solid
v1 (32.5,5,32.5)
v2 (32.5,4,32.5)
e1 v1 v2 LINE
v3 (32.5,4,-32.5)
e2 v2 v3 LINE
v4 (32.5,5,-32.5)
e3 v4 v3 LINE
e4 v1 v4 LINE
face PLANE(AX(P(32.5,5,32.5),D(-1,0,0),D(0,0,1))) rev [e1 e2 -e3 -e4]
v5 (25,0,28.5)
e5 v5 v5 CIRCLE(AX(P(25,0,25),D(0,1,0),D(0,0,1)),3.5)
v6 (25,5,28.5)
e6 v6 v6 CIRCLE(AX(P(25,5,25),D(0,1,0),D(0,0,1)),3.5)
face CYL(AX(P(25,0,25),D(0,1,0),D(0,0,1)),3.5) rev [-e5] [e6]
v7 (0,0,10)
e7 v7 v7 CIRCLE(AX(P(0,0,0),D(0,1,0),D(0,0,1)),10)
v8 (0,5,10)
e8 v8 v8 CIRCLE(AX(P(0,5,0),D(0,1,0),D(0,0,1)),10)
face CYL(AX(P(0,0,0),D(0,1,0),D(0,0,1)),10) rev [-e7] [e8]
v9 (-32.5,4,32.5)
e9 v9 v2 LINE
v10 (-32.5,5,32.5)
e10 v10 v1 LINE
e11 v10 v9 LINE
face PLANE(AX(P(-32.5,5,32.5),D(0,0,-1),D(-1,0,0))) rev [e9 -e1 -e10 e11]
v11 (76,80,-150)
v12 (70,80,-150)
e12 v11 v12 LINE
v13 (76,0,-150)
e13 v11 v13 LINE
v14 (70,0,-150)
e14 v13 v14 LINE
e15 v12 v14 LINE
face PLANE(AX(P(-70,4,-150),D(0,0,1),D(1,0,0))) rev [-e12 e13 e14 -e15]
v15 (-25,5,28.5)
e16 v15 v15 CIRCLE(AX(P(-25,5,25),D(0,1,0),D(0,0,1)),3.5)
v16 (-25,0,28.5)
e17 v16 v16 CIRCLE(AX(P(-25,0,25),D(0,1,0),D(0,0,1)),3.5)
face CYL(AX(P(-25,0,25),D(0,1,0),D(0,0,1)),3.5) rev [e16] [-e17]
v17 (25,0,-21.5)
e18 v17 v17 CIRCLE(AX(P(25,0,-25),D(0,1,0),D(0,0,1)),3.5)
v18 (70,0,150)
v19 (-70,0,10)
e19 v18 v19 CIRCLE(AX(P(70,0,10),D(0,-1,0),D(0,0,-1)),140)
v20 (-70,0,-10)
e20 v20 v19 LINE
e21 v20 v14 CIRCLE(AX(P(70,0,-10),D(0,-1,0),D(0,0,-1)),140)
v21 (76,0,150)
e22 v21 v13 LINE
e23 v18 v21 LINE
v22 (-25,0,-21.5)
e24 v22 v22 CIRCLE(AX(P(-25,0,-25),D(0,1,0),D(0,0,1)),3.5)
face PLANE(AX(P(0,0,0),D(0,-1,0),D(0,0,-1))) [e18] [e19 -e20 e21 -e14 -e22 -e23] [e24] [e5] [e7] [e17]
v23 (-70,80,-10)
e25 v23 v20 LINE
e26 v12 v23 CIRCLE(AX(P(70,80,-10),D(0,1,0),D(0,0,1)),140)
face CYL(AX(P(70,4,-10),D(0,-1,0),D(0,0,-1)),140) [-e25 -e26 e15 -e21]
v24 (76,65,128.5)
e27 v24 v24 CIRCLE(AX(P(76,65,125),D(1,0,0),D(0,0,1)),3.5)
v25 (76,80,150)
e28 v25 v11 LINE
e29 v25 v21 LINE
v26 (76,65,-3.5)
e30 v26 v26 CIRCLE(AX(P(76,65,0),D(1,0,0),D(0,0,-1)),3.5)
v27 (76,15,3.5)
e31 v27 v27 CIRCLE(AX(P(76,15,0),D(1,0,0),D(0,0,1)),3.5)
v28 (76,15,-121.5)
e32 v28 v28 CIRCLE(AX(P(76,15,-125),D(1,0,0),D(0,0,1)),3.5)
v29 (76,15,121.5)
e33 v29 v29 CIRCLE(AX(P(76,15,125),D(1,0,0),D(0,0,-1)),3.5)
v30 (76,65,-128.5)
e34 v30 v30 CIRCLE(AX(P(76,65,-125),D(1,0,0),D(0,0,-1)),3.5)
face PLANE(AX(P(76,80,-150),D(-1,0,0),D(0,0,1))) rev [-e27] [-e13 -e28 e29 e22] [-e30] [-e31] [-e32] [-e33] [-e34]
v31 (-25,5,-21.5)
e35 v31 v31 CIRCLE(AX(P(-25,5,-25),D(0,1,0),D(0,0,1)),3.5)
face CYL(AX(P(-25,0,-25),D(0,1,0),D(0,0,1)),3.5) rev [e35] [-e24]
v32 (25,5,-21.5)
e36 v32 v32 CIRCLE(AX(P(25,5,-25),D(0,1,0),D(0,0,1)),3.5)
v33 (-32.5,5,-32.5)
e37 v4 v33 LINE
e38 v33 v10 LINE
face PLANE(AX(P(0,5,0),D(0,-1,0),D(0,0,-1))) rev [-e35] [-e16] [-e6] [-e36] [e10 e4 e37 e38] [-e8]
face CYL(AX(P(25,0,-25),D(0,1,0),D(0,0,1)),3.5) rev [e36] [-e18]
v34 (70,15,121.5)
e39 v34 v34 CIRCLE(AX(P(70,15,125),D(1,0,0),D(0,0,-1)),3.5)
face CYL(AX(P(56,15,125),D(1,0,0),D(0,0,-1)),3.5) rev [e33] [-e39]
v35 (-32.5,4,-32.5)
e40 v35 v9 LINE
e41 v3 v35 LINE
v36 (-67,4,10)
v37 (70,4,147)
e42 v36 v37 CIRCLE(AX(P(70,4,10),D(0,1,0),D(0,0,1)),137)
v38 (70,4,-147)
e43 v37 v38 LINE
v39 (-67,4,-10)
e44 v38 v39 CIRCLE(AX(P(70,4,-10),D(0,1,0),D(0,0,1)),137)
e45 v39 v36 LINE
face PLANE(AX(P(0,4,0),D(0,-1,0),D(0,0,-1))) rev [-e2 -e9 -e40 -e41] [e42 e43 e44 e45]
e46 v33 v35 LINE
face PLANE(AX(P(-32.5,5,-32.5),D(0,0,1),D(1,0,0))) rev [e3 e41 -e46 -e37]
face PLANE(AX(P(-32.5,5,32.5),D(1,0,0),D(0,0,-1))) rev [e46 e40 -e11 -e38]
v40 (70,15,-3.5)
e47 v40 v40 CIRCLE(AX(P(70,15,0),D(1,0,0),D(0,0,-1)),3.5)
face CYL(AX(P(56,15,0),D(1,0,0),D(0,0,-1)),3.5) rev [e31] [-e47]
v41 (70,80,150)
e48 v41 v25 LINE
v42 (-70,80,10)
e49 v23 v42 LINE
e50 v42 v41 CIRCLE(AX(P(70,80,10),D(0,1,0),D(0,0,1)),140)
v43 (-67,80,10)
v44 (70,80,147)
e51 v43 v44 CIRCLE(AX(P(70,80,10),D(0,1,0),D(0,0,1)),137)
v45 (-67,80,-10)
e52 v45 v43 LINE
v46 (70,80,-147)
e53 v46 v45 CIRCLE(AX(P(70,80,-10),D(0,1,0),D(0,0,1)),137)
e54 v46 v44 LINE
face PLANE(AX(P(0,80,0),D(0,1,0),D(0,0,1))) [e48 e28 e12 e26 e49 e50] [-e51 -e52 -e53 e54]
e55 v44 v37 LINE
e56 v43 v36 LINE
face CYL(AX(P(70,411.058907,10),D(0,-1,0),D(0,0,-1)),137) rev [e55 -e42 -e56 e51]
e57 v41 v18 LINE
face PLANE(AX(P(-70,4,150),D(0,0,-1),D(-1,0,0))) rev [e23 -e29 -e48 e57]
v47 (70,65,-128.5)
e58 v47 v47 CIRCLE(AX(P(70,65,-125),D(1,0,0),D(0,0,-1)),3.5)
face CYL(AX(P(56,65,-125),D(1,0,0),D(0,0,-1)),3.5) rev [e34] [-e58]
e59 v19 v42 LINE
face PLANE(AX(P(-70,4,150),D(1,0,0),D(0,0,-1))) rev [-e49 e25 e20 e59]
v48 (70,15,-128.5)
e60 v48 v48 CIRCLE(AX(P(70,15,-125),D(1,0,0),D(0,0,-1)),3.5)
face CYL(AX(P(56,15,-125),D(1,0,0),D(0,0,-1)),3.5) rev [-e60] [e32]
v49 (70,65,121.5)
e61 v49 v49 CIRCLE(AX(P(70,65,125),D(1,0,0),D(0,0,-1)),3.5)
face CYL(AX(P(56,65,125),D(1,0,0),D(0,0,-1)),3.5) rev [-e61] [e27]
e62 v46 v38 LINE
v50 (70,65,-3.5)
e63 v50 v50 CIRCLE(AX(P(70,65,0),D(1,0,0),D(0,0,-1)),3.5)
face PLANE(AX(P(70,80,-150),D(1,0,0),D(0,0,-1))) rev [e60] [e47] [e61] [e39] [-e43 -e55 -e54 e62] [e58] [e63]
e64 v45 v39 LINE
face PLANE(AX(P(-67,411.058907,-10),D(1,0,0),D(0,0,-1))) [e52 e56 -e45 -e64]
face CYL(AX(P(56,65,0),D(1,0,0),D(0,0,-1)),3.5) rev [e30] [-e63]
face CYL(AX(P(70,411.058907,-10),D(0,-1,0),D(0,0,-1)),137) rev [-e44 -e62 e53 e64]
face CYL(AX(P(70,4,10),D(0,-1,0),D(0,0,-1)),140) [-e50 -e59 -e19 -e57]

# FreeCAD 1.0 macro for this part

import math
import FreeCAD as App
import Part
import Sketcher


def edges_at(feature, points):
    """Names of the edges that pass closest to the given points."""
    edges = feature.Shape.Edges
    near = lambda p: min(range(len(edges)), key=lambda i: edges[i].distToShape(Part.Vertex(*p))[0])
    return sorted({f"Edge{near(p) + 1}" for p in points})


def add_polygon(sketch, points):
    """Adds a closed chain of lines whose ends are joined by coincident constraints."""
    first, n = sketch.GeometryCount, len(points)
    for a, b in zip(points, points[1:] + points[:1]):
        sketch.addGeometry(Part.LineSegment(App.Vector(*a, 0), App.Vector(*b, 0)), False)
    for i in range(n):
        sketch.addConstraint(Sketcher.Constraint("Coincident", first + i, 2, first + (i + 1) % n, 1))

doc = App.newDocument("Part")
body = doc.addObject("PartDesign::Body", "Body")

# Sketch on XZ plane
sketch1 = doc.addObject("Sketcher::SketchObject", "Sketch")
body.addObject(sketch1)
sketch1.AttachmentSupport = (doc.XZ_Plane, [""])
sketch1.MapMode = "FlatFace"
add_polygon(sketch1, [(-70, -150), (-70, 150), (70, 150), (70, -150)])  # lines 0-3
sketch1.addConstraint(Sketcher.Constraint("Vertical", 0))
sketch1.addConstraint(Sketcher.Constraint("Horizontal", 1))
sketch1.addConstraint(Sketcher.Constraint("Vertical", 2))
sketch1.addConstraint(Sketcher.Constraint("Horizontal", 3))
sketch1.addConstraint(Sketcher.Constraint("Symmetric", 0, 2, 2, 2, -1, 1))
sketch1.addConstraint(Sketcher.Constraint("DistanceX", 1, 1, 1, 2, 140.0))
sketch1.addConstraint(Sketcher.Constraint("DistanceY", 0, 1, 0, 2, 300.0))
pad1 = doc.addObject("PartDesign::Pad", "Pad")
body.addObject(pad1)
pad1.Profile = sketch1
pad1.Length = 4
pad1.Reversed = True

# Sketch on XZ plane
sketch2 = doc.addObject("Sketcher::SketchObject", "Sketch001")
body.addObject(sketch2)
sketch2.AttachmentSupport = (doc.XZ_Plane, [""])
sketch2.MapMode = "FlatFace"
add_polygon(sketch2, [(70, -150), (70, 150), (76, 150), (76, -150)])  # lines 0-3
sketch2.addConstraint(Sketcher.Constraint("Vertical", 0))
sketch2.addConstraint(Sketcher.Constraint("Horizontal", 1))
sketch2.addConstraint(Sketcher.Constraint("Vertical", 2))
sketch2.addConstraint(Sketcher.Constraint("Horizontal", 3))
sketch2.addConstraint(Sketcher.Constraint("DistanceX", 1, 1, 1, 2, 6.0))
sketch2.addConstraint(Sketcher.Constraint("DistanceY", 0, 1, 0, 2, 300.0))
sketch2.addConstraint(Sketcher.Constraint("DistanceX", -1, 1, 0, 2, 70.0))
sketch2.addConstraint(Sketcher.Constraint("DistanceY", -1, 1, 0, 2, 150.0))
pad2 = doc.addObject("PartDesign::Pad", "Pad001")
body.addObject(pad2)
pad2.Profile = sketch2
pad2.Length = 80
pad2.Reversed = True
doc.recompute()

fillet = doc.addObject("PartDesign::Fillet", "Fillet")
body.addObject(fillet)
fillet.Base = (pad2, edges_at(pad2, [(-70, 2, -150), (-70, 2, 150)]))
fillet.Radius = 140

# Sketch on XZ plane
sketch3 = doc.addObject("Sketcher::SketchObject", "Sketch002")
body.addObject(sketch3)
sketch3.AttachmentSupport = (doc.XZ_Plane, [""])
sketch3.MapMode = "FlatFace"
sketch3.AttachmentOffset = App.Placement(App.Vector(0, 0, -4), App.Rotation())
add_polygon(sketch3, [(-32.5, -32.5), (-32.5, 32.5), (32.5, 32.5), (32.5, -32.5)])  # lines 0-3
sketch3.addConstraint(Sketcher.Constraint("Vertical", 0))
sketch3.addConstraint(Sketcher.Constraint("Horizontal", 1))
sketch3.addConstraint(Sketcher.Constraint("Vertical", 2))
sketch3.addConstraint(Sketcher.Constraint("Horizontal", 3))
sketch3.addConstraint(Sketcher.Constraint("Symmetric", 0, 2, 2, 2, -1, 1))
sketch3.addConstraint(Sketcher.Constraint("Equal", 3, 0))
sketch3.addConstraint(Sketcher.Constraint("DistanceX", 1, 1, 1, 2, 65.0))
pad3 = doc.addObject("PartDesign::Pad", "Pad002")
body.addObject(pad3)
pad3.Profile = sketch3
pad3.Length = 1
pad3.Reversed = True

# Sketch on XZ plane
sketch4 = doc.addObject("Sketcher::SketchObject", "Sketch003")
body.addObject(sketch4)
sketch4.AttachmentSupport = (doc.XZ_Plane, [""])
sketch4.MapMode = "FlatFace"
sketch4.AttachmentOffset = App.Placement(App.Vector(0, 0, -5), App.Rotation())
sketch4.addGeometry(Part.Circle(App.Vector(-25, -25, 0), App.Vector(0, 0, 1), 3.5), False)
sketch4.addGeometry(Part.Circle(App.Vector(25, -25, 0), App.Vector(0, 0, 1), 3.5), False)
sketch4.addGeometry(Part.Circle(App.Vector(-25, 25, 0), App.Vector(0, 0, 1), 3.5), False)
sketch4.addGeometry(Part.Circle(App.Vector(25, 25, 0), App.Vector(0, 0, 1), 3.5), False)
sketch4.addGeometry(Part.Circle(App.Vector(0, 0, 0), App.Vector(0, 0, 1), 10), False)
sketch4.addConstraint(Sketcher.Constraint("Coincident", 4, 3, -1, 1))
sketch4.addConstraint(Sketcher.Constraint("Equal", 0, 1))
sketch4.addConstraint(Sketcher.Constraint("Equal", 1, 2))
sketch4.addConstraint(Sketcher.Constraint("Equal", 2, 3))
sketch4.addConstraint(Sketcher.Constraint("Symmetric", 1, 3, 2, 3, -1, 1))
sketch4.addConstraint(Sketcher.Constraint("Symmetric", 0, 3, 3, 3, -1, 1))
sketch4.addConstraint(Sketcher.Constraint("Symmetric", 0, 3, 1, 3, -2))
sketch4.addConstraint(Sketcher.Constraint("Diameter", 0, 7.0))
sketch4.addConstraint(Sketcher.Constraint("Diameter", 4, 20.0))
sketch4.addConstraint(Sketcher.Constraint("DistanceX", 0, 3, -1, 1, 25.0))
sketch4.addConstraint(Sketcher.Constraint("DistanceY", 0, 3, -1, 1, 25.0))
pocket1 = doc.addObject("PartDesign::Pocket", "Pocket")
body.addObject(pocket1)
pocket1.Profile = sketch4
pocket1.Type = "ThroughAll"
pocket1.Reversed = True

# Sketch on XZ plane
sketch5 = doc.addObject("Sketcher::SketchObject", "Sketch004")
body.addObject(sketch5)
sketch5.AttachmentSupport = (doc.XZ_Plane, [""])
sketch5.MapMode = "FlatFace"
sketch5.AttachmentOffset = App.Placement(App.Vector(0, 0, -80), App.Rotation())
sketch5.addGeometry(Part.ArcOfCircle(Part.Circle(App.Vector(70, -10, 0), App.Vector(0, 0, 1), 137), math.radians(180), math.radians(270)), False)
sketch5.addGeometry(Part.LineSegment(App.Vector(70, -147, 0), App.Vector(70, -150, 0)), False)
sketch5.addGeometry(Part.ArcOfCircle(Part.Circle(App.Vector(70, -10, 0), App.Vector(0, 0, 1), 140), math.radians(180), math.radians(270)), False)
sketch5.addGeometry(Part.LineSegment(App.Vector(-70, -10, 0), App.Vector(-70, 10, 0)), False)
sketch5.addGeometry(Part.ArcOfCircle(Part.Circle(App.Vector(70, 10, 0), App.Vector(0, 0, 1), 140), math.radians(90), math.radians(180)), False)
sketch5.addGeometry(Part.LineSegment(App.Vector(70, 150, 0), App.Vector(70, 147, 0)), False)
sketch5.addGeometry(Part.ArcOfCircle(Part.Circle(App.Vector(70, 10, 0), App.Vector(0, 0, 1), 137), math.radians(90), math.radians(180)), False)
sketch5.addGeometry(Part.LineSegment(App.Vector(-67, 10, 0), App.Vector(-67, -10, 0)), False)
sketch5.addConstraint(Sketcher.Constraint("Coincident", 0, 2, 1, 1))
sketch5.addConstraint(Sketcher.Constraint("Coincident", 1, 2, 2, 2))
sketch5.addConstraint(Sketcher.Constraint("Tangent", 2, 1, 3, 1))
sketch5.addConstraint(Sketcher.Constraint("Tangent", 3, 2, 4, 2))
sketch5.addConstraint(Sketcher.Constraint("Coincident", 4, 1, 5, 1))
sketch5.addConstraint(Sketcher.Constraint("Coincident", 5, 2, 6, 1))
sketch5.addConstraint(Sketcher.Constraint("Tangent", 6, 2, 7, 1))
sketch5.addConstraint(Sketcher.Constraint("Tangent", 7, 2, 0, 1))
sketch5.addConstraint(Sketcher.Constraint("Vertical", 1))
sketch5.addConstraint(Sketcher.Constraint("Vertical", 3))
sketch5.addConstraint(Sketcher.Constraint("Vertical", 5))
sketch5.addConstraint(Sketcher.Constraint("Vertical", 7))
sketch5.addConstraint(Sketcher.Constraint("Coincident", 2, 3, 0, 3))
sketch5.addConstraint(Sketcher.Constraint("Coincident", 6, 3, 4, 3))
sketch5.addConstraint(Sketcher.Constraint("Equal", 2, 4))
sketch5.addConstraint(Sketcher.Constraint("Symmetric", 1, 2, 4, 1, -1))
sketch5.addConstraint(Sketcher.Constraint("Vertical", 6, 3, 0, 2))
sketch5.addConstraint(Sketcher.Constraint("Radius", 0, 137.0))
sketch5.addConstraint(Sketcher.Constraint("Radius", 2, 140.0))
sketch5.addConstraint(Sketcher.Constraint("DistanceY", 3, 1, 3, 2, 20.0))
sketch5.addConstraint(Sketcher.Constraint("DistanceX", -1, 1, 0, 3, 70.0))
pad4 = doc.addObject("PartDesign::Pad", "Pad003")
body.addObject(pad4)
pad4.Profile = sketch5
pad4.Length = 76

# Sketch on YZ plane
sketch6 = doc.addObject("Sketcher::SketchObject", "Sketch005")
body.addObject(sketch6)
sketch6.AttachmentSupport = (doc.YZ_Plane, [""])
sketch6.MapMode = "FlatFace"
sketch6.AttachmentOffset = App.Placement(App.Vector(0, 0, 76), App.Rotation())
sketch6.addGeometry(Part.Circle(App.Vector(65, 0, 0), App.Vector(0, 0, 1), 3.5), False)
sketch6.addGeometry(Part.Circle(App.Vector(15, 0, 0), App.Vector(0, 0, 1), 3.5), False)
sketch6.addGeometry(Part.Circle(App.Vector(65, -125, 0), App.Vector(0, 0, 1), 3.5), False)
sketch6.addGeometry(Part.Circle(App.Vector(65, 125, 0), App.Vector(0, 0, 1), 3.5), False)
sketch6.addGeometry(Part.Circle(App.Vector(15, 125, 0), App.Vector(0, 0, 1), 3.5), False)
sketch6.addGeometry(Part.Circle(App.Vector(15, -125, 0), App.Vector(0, 0, 1), 3.5), False)
sketch6.addConstraint(Sketcher.Constraint("Equal", 0, 1))
sketch6.addConstraint(Sketcher.Constraint("Equal", 1, 2))
sketch6.addConstraint(Sketcher.Constraint("Equal", 2, 3))
sketch6.addConstraint(Sketcher.Constraint("Equal", 3, 4))
sketch6.addConstraint(Sketcher.Constraint("Equal", 4, 5))
sketch6.addConstraint(Sketcher.Constraint("Symmetric", 2, 3, 3, 3, -1))
sketch6.addConstraint(Sketcher.Constraint("Symmetric", 4, 3, 5, 3, -1))
sketch6.addConstraint(Sketcher.Constraint("PointOnObject", 0, 3, -1))
sketch6.addConstraint(Sketcher.Constraint("PointOnObject", 1, 3, -1))
sketch6.addConstraint(Sketcher.Constraint("Horizontal", 3, 3, 4, 3))
sketch6.addConstraint(Sketcher.Constraint("Vertical", 0, 3, 2, 3))
sketch6.addConstraint(Sketcher.Constraint("Vertical", 1, 3, 4, 3))
sketch6.addConstraint(Sketcher.Constraint("Diameter", 0, 7.0))
sketch6.addConstraint(Sketcher.Constraint("DistanceX", -1, 1, 0, 3, 65.0))
sketch6.addConstraint(Sketcher.Constraint("DistanceX", -1, 1, 1, 3, 15.0))
sketch6.addConstraint(Sketcher.Constraint("DistanceY", 2, 3, -1, 1, 125.0))
pocket2 = doc.addObject("PartDesign::Pocket", "Pocket001")
body.addObject(pocket2)
pocket2.Profile = sketch6
pocket2.Length = 20

doc.recompute()
